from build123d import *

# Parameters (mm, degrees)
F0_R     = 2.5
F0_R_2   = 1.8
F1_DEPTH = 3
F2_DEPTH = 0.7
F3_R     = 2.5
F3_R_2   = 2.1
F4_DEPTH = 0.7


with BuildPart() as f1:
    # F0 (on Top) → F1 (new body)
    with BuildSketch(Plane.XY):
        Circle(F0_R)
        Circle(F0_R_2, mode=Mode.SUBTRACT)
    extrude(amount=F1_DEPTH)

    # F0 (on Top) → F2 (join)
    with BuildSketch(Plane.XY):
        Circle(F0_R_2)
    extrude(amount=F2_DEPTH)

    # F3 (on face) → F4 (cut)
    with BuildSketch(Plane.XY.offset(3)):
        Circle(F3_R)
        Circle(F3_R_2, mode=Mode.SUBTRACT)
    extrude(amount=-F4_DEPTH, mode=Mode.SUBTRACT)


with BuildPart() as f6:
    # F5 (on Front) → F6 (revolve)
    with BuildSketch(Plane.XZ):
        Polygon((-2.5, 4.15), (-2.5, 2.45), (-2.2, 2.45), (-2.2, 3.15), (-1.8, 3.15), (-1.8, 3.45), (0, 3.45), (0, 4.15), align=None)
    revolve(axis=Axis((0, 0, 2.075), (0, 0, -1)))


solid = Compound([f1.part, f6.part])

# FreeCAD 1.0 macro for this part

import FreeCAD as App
import Part
import Sketcher

doc = App.newDocument("Part")
body = doc.addObject("PartDesign::Body", "Body")

# Sketch on XY plane
sketch1 = body.newObject("Sketcher::SketchObject", "Sketch")
sketch1.AttachmentSupport = (doc.getObject("XY_Plane"), [""])
sketch1.MapMode = "FlatFace"
sketch1.addGeometry([
    Part.Circle(App.Vector(0, 0, 0), App.Vector(0, 0, 1), 2.5),
    Part.Circle(App.Vector(0, 0, 0), App.Vector(0, 0, 1), 1.8),
], False)
sketch1.addConstraint([
    Sketcher.Constraint("Coincident", 0, 3, -1, 1),
    Sketcher.Constraint("Coincident", 1, 3, -1, 1),
    Sketcher.Constraint("Diameter", 0, 5.0),
    Sketcher.Constraint("Diameter", 1, 3.6),
])
pad1 = body.newObject("PartDesign::Pad", "Pad")
pad1.Profile = sketch1
pad1.Length = 3

# Sketch on XY plane
sketch2 = body.newObject("Sketcher::SketchObject", "Sketch001")
sketch2.AttachmentSupport = (doc.getObject("XY_Plane"), [""])
sketch2.MapMode = "FlatFace"
sketch2.addGeometry(Part.Circle(App.Vector(0, 0, 0), App.Vector(0, 0, 1), 1.8), False)
sketch2.addConstraint([
    Sketcher.Constraint("Coincident", 0, 3, -1, 1),
    Sketcher.Constraint("Diameter", 0, 3.6),
])
pad2 = body.newObject("PartDesign::Pad", "Pad001")
pad2.Profile = sketch2
pad2.Length = 0.7

# Sketch on XY plane
sketch3 = body.newObject("Sketcher::SketchObject", "Sketch002")
sketch3.AttachmentSupport = (doc.getObject("XY_Plane"), [""])
sketch3.MapMode = "FlatFace"
sketch3.AttachmentOffset = App.Placement(App.Vector(0, 0, 3), App.Rotation())
sketch3.addGeometry([
    Part.Circle(App.Vector(0, 0, 0), App.Vector(0, 0, 1), 2.5),
    Part.Circle(App.Vector(0, 0, 0), App.Vector(0, 0, 1), 2.1),
], False)
sketch3.addConstraint([
    Sketcher.Constraint("Coincident", 0, 3, -1, 1),
    Sketcher.Constraint("Coincident", 1, 3, -1, 1),
    Sketcher.Constraint("Diameter", 0, 5.0),
    Sketcher.Constraint("Diameter", 1, 4.2),
])
pocket1 = body.newObject("PartDesign::Pocket", "Pocket")
pocket1.Profile = sketch3
pocket1.Length = 0.7
body2 = doc.addObject("PartDesign::Body", "Body001")

# Sketch on XZ plane
sketch4 = body2.newObject("Sketcher::SketchObject", "Sketch003")
sketch4.AttachmentSupport = (doc.getObject("XZ_Plane001"), [""])
sketch4.MapMode = "FlatFace"
sketch4.addGeometry([
    Part.LineSegment(App.Vector(-2.5, 4.15, 0), App.Vector(-2.5, 2.45, 0)),  # 0
    Part.LineSegment(App.Vector(-2.5, 2.45, 0), App.Vector(-2.2, 2.45, 0)),  # 1
    Part.LineSegment(App.Vector(-2.2, 2.45, 0), App.Vector(-2.2, 3.15, 0)),  # 2
    Part.LineSegment(App.Vector(-2.2, 3.15, 0), App.Vector(-1.8, 3.15, 0)),  # 3
    Part.LineSegment(App.Vector(-1.8, 3.15, 0), App.Vector(-1.8, 3.45, 0)),  # 4
    Part.LineSegment(App.Vector(-1.8, 3.45, 0), App.Vector(0, 3.45, 0)),  # 5
    Part.LineSegment(App.Vector(0, 3.45, 0), App.Vector(0, 4.15, 0)),  # 6
    Part.LineSegment(App.Vector(0, 4.15, 0), App.Vector(-2.5, 4.15, 0)),  # 7
], False)
sketch4.addConstraint([
    Sketcher.Constraint("Coincident", 0, 2, 1, 1),
    Sketcher.Constraint("Coincident", 1, 2, 2, 1),
    Sketcher.Constraint("Coincident", 2, 2, 3, 1),
    Sketcher.Constraint("Coincident", 3, 2, 4, 1),
    Sketcher.Constraint("Coincident", 4, 2, 5, 1),
    Sketcher.Constraint("Coincident", 5, 2, 6, 1),
    Sketcher.Constraint("Coincident", 6, 2, 7, 1),
    Sketcher.Constraint("Coincident", 7, 2, 0, 1),
    Sketcher.Constraint("Vertical", 0),
    Sketcher.Constraint("Horizontal", 1),
    Sketcher.Constraint("Vertical", 2),
    Sketcher.Constraint("Horizontal", 3),
    Sketcher.Constraint("Vertical", 4),
    Sketcher.Constraint("Horizontal", 5),
    Sketcher.Constraint("Vertical", 6),
    Sketcher.Constraint("Horizontal", 7),
    Sketcher.Constraint("PointOnObject", 5, 2, -2),
    Sketcher.Constraint("Equal", 1, 4),
    Sketcher.Constraint("Equal", 2, 6),
    Sketcher.Constraint("DistanceX", 1, 1, 1, 2, 0.3),
    Sketcher.Constraint("DistanceX", 3, 1, 3, 2, 0.4),
    Sketcher.Constraint("DistanceX", 5, 1, 5, 2, 1.8),
    Sketcher.Constraint("DistanceY", 0, 2, 0, 1, 1.7),
    Sketcher.Constraint("DistanceY", -1, 1, 0, 2, 2.45),
])
revolution = body2.newObject("PartDesign::Revolution", "Revolution")
revolution.Profile = sketch4
revolution.ReferenceAxis = (sketch4, ["V_Axis"])
revolution.Angle = 360

doc.recompute()
